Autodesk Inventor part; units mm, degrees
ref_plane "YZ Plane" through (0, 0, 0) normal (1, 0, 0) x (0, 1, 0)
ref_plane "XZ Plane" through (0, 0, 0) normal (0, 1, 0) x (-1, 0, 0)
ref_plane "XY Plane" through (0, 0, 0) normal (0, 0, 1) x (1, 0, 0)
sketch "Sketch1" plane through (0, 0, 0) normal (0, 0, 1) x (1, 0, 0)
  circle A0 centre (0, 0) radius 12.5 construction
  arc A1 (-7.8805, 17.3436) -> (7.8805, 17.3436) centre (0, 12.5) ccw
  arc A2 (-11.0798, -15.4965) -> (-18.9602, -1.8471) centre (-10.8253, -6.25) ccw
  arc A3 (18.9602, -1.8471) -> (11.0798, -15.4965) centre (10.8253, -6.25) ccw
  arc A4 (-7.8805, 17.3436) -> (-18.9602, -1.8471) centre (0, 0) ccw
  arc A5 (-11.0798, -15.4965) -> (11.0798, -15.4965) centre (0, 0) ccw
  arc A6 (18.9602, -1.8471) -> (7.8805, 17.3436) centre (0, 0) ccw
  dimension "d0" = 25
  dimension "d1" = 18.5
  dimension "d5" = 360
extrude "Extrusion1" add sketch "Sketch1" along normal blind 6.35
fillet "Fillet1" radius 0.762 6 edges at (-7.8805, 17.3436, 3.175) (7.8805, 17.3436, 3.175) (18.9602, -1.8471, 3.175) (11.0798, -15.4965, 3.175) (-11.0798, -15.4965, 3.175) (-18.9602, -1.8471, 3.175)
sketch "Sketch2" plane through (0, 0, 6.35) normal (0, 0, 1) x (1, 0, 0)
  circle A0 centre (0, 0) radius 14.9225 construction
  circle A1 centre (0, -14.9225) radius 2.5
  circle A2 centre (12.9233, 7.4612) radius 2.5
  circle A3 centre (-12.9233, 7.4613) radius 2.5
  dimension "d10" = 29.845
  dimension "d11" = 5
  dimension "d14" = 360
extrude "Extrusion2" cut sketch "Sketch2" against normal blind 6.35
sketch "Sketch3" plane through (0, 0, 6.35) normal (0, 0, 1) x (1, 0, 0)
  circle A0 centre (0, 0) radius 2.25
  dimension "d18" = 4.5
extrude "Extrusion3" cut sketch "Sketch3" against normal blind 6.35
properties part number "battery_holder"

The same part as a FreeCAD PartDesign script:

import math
import FreeCAD as App
import Part
import Sketcher

V = App.Vector
Q = App.Units.Quantity


def edges_at(feature, points):
    """Names of the edges that pass closest to the given points."""
    edges = feature.Shape.Edges
    near = lambda p: min(range(len(edges)), key=lambda i: edges[i].distToShape(Part.Vertex(*p))[0])
    return sorted({f"Edge{near(p) + 1}" for p in points})

doc = App.newDocument("Part")
body = doc.addObject("PartDesign::Body", "Body")

sketch1 = body.newObject("Sketcher::SketchObject", "Sketch")
sketch1.AttachmentSupport = (doc.getObject("XY_Plane"), [""])
sketch1.MapMode = "FlatFace"
sketch1.addGeometry(Part.ArcOfCircle(Part.Circle(V(0, 12, 0), V(0, 0, 1), 9), math.radians(148), math.radians(392)), False)
sketch1.addGeometry(Part.ArcOfCircle(Part.Circle(V(0, 0, 0), V(0, 0, 1), 19), math.radians(114), math.radians(186)), False)
sketch1.addGeometry(Part.ArcOfCircle(Part.Circle(V(-11, -6, 0), V(0, 0, 1), 9), math.radians(-92), math.radians(152)), False)
sketch1.addGeometry(Part.ArcOfCircle(Part.Circle(V(0, 0, 0), V(0, 0, 1), 19), math.radians(-126), math.radians(-54)), False)
sketch1.addGeometry(Part.ArcOfCircle(Part.Circle(V(11, -6, 0), V(0, 0, 1), 9), math.radians(28), math.radians(272)), False)
sketch1.addGeometry(Part.ArcOfCircle(Part.Circle(V(0, 0, 0), V(0, 0, 1), 19), math.radians(-6), math.radians(66)), False)
sketch1.addConstraint(Sketcher.Constraint("Coincident", 0, 1, 1, 1))
sketch1.addConstraint(Sketcher.Constraint("Coincident", 1, 2, 2, 2))
sketch1.addConstraint(Sketcher.Constraint("Coincident", 2, 1, 3, 1))
sketch1.addConstraint(Sketcher.Constraint("Coincident", 3, 2, 4, 2))
sketch1.addConstraint(Sketcher.Constraint("Coincident", 4, 1, 5, 1))
sketch1.addConstraint(Sketcher.Constraint("Coincident", 5, 2, 0, 2))
sketch1.addConstraint(Sketcher.Constraint("Coincident", 1, 3, -1, 1))
sketch1.addConstraint(Sketcher.Constraint("Coincident", 3, 3, -1, 1))
sketch1.addConstraint(Sketcher.Constraint("Coincident", 5, 3, -1, 1))
sketch1.addConstraint(Sketcher.Constraint("Equal", 0, 2))
sketch1.addConstraint(Sketcher.Constraint("Equal", 1, 3))
sketch1.addConstraint(Sketcher.Constraint("Equal", 2, 4))
sketch1.addConstraint(Sketcher.Constraint("Equal", 3, 5))
sketch1.addConstraint(Sketcher.Constraint("Symmetric", 2, 3, 4, 3, -2))
sketch1.addConstraint(Sketcher.Constraint("PointOnObject", 0, 3, -2))
sketch1.addConstraint(Sketcher.Constraint("Radius", 0, Q("9.25 mm")))
sketch1.addConstraint(Sketcher.Constraint("Radius", 1, Q("19.05 mm")))
sketch1.addConstraint(Sketcher.Constraint("DistanceY", -1, 1, 0, 3, Q("12.5 mm")))
sketch1.addConstraint(Sketcher.Constraint("DistanceY", 2, 3, -1, 1, Q("6.25 mm")))
sketch1.addConstraint(Sketcher.Constraint("DistanceY", 1, 2, -1, 1, Q("1.847 mm")))
pad1 = body.newObject("PartDesign::Pad", "Pad")
pad1.Profile = sketch1
pad1.Length = 6.35
doc.recompute()

fillet = body.newObject("PartDesign::Fillet", "Fillet")
fillet.Base = (pad1, edges_at(pad1, [
    (-7.88, 17.344, 3.175),
    (7.88, 17.344, 3.175),
    (18.96, -1.847, 3.175),
    (11.08, -15.496, 3.175),
    (-11.08, -15.496, 3.175),
    (-18.96, -1.847, 3.175),
]))
fillet.Radius = 0.762

sketch2 = body.newObject("Sketcher::SketchObject", "Sketch001")
sketch2.AttachmentSupport = (doc.getObject("XY_Plane"), [""])
sketch2.MapMode = "FlatFace"
sketch2.AttachmentOffset = App.Placement(V(0, 0, 6.35), App.Rotation())
sketch2.addGeometry(Part.Circle(V(0, -14.9, 0), V(0, 0, 1), 2.5), False)
sketch2.addGeometry(Part.Circle(V(12.9, 7.5, 0), V(0, 0, 1), 2.5), False)
sketch2.addGeometry(Part.Circle(V(-12.9, 7.5, 0), V(0, 0, 1), 2.5), False)
sketch2.addConstraint(Sketcher.Constraint("Equal", 0, 1))
sketch2.addConstraint(Sketcher.Constraint("Equal", 1, 2))
sketch2.addConstraint(Sketcher.Constraint("Symmetric", 1, 3, 2, 3, -2))
sketch2.addConstraint(Sketcher.Constraint("PointOnObject", 0, 3, -2))
sketch2.addConstraint(Sketcher.Constraint("Diameter", 0, Q("5 mm")))
sketch2.addConstraint(Sketcher.Constraint("DistanceY", 0, 3, -1, 1, Q("14.9225 mm")))
sketch2.addConstraint(Sketcher.Constraint("DistanceX", -1, 1, 1, 3, Q("12.9233 mm")))
sketch2.addConstraint(Sketcher.Constraint("DistanceY", -1, 1, 1, 3, Q("7.4612 mm")))
pocket1 = body.newObject("PartDesign::Pocket", "Pocket")
pocket1.Profile = sketch2
pocket1.Length = 6.35

sketch3 = body.newObject("Sketcher::SketchObject", "Sketch002")
sketch3.AttachmentSupport = (doc.getObject("XY_Plane"), [""])
sketch3.MapMode = "FlatFace"
sketch3.AttachmentOffset = App.Placement(V(0, 0, 6.35), App.Rotation())
sketch3.addGeometry(Part.Circle(V(0, 0, 0), V(0, 0, 1), 2.2), False)
sketch3.addConstraint(Sketcher.Constraint("Coincident", 0, 3, -1, 1))
sketch3.addConstraint(Sketcher.Constraint("Diameter", 0, Q("4.5 mm")))
pocket2 = body.newObject("PartDesign::Pocket", "Pocket001")
pocket2.Profile = sketch3
pocket2.Length = 6.35

doc.recompute()
